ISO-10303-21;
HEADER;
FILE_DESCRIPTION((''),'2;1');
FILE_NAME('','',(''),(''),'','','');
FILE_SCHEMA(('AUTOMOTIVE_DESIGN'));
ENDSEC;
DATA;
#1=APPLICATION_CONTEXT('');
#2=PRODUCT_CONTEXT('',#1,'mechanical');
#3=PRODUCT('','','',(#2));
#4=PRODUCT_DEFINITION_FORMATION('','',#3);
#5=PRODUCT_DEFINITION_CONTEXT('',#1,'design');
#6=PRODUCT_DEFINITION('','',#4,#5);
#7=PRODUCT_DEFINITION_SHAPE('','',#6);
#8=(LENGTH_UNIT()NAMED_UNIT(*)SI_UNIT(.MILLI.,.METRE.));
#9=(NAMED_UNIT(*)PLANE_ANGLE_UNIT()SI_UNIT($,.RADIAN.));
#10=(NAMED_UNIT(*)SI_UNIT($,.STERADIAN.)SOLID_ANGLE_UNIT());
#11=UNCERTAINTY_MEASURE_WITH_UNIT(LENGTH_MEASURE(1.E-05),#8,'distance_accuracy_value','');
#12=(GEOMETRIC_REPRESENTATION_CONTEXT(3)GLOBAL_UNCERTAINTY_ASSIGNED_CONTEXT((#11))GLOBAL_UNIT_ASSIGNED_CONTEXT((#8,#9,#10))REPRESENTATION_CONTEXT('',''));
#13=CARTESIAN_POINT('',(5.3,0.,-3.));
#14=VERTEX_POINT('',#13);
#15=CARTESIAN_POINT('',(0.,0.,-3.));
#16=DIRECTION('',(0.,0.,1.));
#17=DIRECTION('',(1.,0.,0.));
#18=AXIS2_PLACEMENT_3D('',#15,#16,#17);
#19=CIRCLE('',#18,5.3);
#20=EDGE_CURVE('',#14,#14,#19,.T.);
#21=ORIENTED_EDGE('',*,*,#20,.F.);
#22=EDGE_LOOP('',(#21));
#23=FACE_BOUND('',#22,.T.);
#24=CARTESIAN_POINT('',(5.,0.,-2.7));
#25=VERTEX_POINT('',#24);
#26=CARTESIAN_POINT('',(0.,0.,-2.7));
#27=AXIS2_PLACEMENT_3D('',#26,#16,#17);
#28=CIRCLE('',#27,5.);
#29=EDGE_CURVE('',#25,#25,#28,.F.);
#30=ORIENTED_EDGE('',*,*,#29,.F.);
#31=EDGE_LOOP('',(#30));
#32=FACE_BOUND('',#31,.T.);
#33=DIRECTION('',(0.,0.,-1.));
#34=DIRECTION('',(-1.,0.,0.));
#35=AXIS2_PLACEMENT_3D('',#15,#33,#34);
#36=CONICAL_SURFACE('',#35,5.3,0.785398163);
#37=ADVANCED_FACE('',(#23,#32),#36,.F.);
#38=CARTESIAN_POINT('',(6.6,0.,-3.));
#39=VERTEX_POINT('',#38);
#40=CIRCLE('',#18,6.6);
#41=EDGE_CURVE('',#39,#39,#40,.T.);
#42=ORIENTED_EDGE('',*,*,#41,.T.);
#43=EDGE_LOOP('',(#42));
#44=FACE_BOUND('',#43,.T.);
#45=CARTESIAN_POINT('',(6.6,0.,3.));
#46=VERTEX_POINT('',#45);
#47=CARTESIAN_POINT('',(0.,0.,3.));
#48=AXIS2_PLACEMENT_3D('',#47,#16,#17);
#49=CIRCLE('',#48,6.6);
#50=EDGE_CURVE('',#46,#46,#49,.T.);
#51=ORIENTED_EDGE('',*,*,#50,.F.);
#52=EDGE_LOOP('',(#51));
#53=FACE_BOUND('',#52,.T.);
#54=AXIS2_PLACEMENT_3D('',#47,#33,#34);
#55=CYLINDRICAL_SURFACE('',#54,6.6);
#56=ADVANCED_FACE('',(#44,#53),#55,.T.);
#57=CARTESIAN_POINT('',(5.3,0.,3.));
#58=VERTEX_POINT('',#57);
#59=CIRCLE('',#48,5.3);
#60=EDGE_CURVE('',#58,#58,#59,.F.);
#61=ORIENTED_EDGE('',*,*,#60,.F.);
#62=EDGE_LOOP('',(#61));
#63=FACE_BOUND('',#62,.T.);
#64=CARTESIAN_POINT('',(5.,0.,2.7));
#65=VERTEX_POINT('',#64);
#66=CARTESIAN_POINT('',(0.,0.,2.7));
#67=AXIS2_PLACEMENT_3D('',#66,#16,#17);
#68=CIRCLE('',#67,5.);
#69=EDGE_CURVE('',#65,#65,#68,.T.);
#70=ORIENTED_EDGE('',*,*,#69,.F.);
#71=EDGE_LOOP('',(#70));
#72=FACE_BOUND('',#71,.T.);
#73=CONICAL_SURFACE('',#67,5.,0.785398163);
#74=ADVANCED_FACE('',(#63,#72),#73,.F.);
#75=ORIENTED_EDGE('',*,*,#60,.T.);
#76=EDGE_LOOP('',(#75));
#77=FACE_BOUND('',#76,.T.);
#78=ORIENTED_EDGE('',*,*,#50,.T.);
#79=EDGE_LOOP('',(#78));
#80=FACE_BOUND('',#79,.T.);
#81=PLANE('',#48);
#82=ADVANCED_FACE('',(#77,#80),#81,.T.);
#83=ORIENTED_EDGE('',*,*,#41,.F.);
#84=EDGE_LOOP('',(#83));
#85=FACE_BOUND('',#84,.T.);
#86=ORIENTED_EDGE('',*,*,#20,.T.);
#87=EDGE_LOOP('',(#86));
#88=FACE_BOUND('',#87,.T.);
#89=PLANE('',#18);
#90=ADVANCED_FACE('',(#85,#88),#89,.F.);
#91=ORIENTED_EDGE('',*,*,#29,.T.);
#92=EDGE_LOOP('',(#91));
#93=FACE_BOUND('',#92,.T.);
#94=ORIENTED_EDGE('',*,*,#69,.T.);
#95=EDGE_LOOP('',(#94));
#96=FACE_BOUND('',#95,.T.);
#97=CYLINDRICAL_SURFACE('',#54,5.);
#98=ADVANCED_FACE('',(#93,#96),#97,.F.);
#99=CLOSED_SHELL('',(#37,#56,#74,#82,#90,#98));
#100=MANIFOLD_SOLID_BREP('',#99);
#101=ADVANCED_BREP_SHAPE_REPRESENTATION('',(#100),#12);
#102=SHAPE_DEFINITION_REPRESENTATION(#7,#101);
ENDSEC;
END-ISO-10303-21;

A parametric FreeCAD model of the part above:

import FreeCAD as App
import Part
import Sketcher
from FreeCAD import Vector


def edges_at(feature, points):
    """Names of the edges that pass closest to the given points."""
    edges = feature.Shape.Edges
    near = lambda p: min(range(len(edges)), key=lambda i: edges[i].distToShape(Part.Vertex(*p))[0])
    return sorted({f"Edge{near(p) + 1}" for p in points})

doc = App.newDocument("Part")
body = doc.addObject("PartDesign::Body", "Body")

sketch1 = doc.addObject("Sketcher::SketchObject", "Sketch")
body.addObject(sketch1)
sketch1.AttachmentSupport = (doc.XY_Plane, [""])
sketch1.MapMode = "FlatFace"
sketch1.addGeometry([
    Part.Circle(Vector(0, 0, 0), Vector(0, 0, 1), 7),
    Part.Circle(Vector(0, 0, 0), Vector(0, 0, 1), 5),
], False)
sketch1.addConstraint([
    Sketcher.Constraint("Coincident", 0, 3, -1, 1),
    Sketcher.Constraint("Coincident", 1, 3, -1, 1),
    Sketcher.Constraint("Diameter", 1, 10.0),
    Sketcher.Constraint("Diameter", 0, 13.2),
])
pad1 = doc.addObject("PartDesign::Pad", "Pad")
body.addObject(pad1)
pad1.Profile = sketch1
pad1.Length = 6
pad1.Midplane = True
doc.recompute()

chamfer = doc.addObject("PartDesign::Chamfer", "Chamfer")
body.addObject(chamfer)
chamfer.Base = (pad1, edges_at(pad1, [(-5, 0, -3), (-5, 0, 3)]))
chamfer.Size = 0.3

doc.recompute()
